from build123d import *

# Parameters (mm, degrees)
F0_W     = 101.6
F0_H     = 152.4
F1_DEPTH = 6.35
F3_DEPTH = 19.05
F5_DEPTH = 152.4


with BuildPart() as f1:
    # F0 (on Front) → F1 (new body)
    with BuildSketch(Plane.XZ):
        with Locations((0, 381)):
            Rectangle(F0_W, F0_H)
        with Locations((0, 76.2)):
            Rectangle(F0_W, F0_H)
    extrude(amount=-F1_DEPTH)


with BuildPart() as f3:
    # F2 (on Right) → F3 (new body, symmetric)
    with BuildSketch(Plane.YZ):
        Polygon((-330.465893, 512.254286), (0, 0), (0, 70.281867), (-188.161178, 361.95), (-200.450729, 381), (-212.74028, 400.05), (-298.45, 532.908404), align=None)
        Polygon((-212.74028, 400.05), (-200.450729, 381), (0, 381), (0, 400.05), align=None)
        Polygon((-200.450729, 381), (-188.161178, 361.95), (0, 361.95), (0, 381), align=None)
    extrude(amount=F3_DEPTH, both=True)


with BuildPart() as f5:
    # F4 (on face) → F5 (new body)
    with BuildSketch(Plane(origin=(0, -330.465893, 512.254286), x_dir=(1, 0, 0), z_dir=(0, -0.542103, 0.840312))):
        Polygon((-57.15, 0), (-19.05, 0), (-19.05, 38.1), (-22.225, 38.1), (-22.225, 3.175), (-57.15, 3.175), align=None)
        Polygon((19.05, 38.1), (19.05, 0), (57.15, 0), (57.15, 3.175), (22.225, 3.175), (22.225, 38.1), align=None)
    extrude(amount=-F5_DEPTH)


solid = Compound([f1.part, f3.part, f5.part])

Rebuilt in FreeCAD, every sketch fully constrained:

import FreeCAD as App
import Part
import Sketcher

V = App.Vector
Q = App.Units.Quantity

doc = App.newDocument("Part")
body = doc.addObject("PartDesign::Body", "Body")
body.AllowCompound = True

# Sketch on XZ plane
sketch1 = body.newObject("Sketcher::SketchObject", "Sketch")
sketch1.AttachmentSupport = (doc.getObject("XZ_Plane"), [""])
sketch1.MapMode = "FlatFace"
sketch1.addGeometry([
    Part.LineSegment(V(-51, 457, 0), V(-51, 305, 0)),  # 0
    Part.LineSegment(V(-51, 305, 0), V(51, 305, 0)),  # 1
    Part.LineSegment(V(51, 305, 0), V(51, 457, 0)),  # 2
    Part.LineSegment(V(51, 457, 0), V(-51, 457, 0)),  # 3
    Part.LineSegment(V(-51, 152, 0), V(-51, 0, 0)),  # 4
    Part.LineSegment(V(-51, 0, 0), V(51, 0, 0)),  # 5
    Part.LineSegment(V(51, 0, 0), V(51, 152, 0)),  # 6
    Part.LineSegment(V(51, 152, 0), V(-51, 152, 0)),  # 7
], False)
sketch1.addConstraint([
    Sketcher.Constraint("Coincident", 0, 2, 1, 1),
    Sketcher.Constraint("Coincident", 1, 2, 2, 1),
    Sketcher.Constraint("Coincident", 2, 2, 3, 1),
    Sketcher.Constraint("Coincident", 3, 2, 0, 1),
    Sketcher.Constraint("Coincident", 4, 2, 5, 1),
    Sketcher.Constraint("Coincident", 5, 2, 6, 1),
    Sketcher.Constraint("Coincident", 6, 2, 7, 1),
    Sketcher.Constraint("Coincident", 7, 2, 4, 1),
    Sketcher.Constraint("Vertical", 0),
    Sketcher.Constraint("Horizontal", 1),
    Sketcher.Constraint("Vertical", 2),
    Sketcher.Constraint("Horizontal", 3),
    Sketcher.Constraint("Vertical", 4),
    Sketcher.Constraint("Horizontal", 5),
    Sketcher.Constraint("Vertical", 6),
    Sketcher.Constraint("Horizontal", 7),
    Sketcher.Constraint("Symmetric", 4, 2, 5, 2, -1, 1),
    Sketcher.Constraint("Vertical", 3, 2, 4, 2),
    Sketcher.Constraint("Vertical", 2, 2, 5, 2),
    Sketcher.Constraint("Equal", 2, 4),
    Sketcher.Constraint("DistanceX", 1, 1, 1, 2, Q("4 in")),
    Sketcher.Constraint("DistanceY", 0, 2, 0, 1, Q("6 in")),
    Sketcher.Constraint("DistanceY", -1, 1, 0, 2, Q("12 in")),
])
pad1 = body.newObject("PartDesign::Pad", "Pad")
pad1.Profile = sketch1
pad1.Length = Q("0.25 in")
pad1.Reversed = True
body2 = doc.addObject("PartDesign::Body", "Body001")

# Sketch on YZ plane
sketch2 = body2.newObject("Sketcher::SketchObject", "Sketch001")
sketch2.AttachmentSupport = (doc.getObject("YZ_Plane001"), [""])
sketch2.MapMode = "FlatFace"
sketch2.addGeometry([
    Part.LineSegment(V(-330, 512, 0), V(0, 0, 0)),  # 0
    Part.LineSegment(V(0, 0, 0), V(0, 70, 0)),  # 1
    Part.LineSegment(V(0, 70, 0), V(-188, 362, 0)),  # 2
    Part.LineSegment(V(-188, 362, 0), V(0, 362, 0)),  # 3
    Part.LineSegment(V(0, 362, 0), V(0, 400, 0)),  # 4
    Part.LineSegment(V(0, 400, 0), V(-213, 400, 0)),  # 5
    Part.LineSegment(V(-213, 400, 0), V(-298, 533, 0)),  # 6
    Part.LineSegment(V(-298, 533, 0), V(-330, 512, 0)),  # 7
], False)
sketch2.addConstraint([
    Sketcher.Constraint("Coincident", 0, 2, 1, 1),
    Sketcher.Constraint("Coincident", 1, 2, 2, 1),
    Sketcher.Constraint("Coincident", 2, 2, 3, 1),
    Sketcher.Constraint("Coincident", 3, 2, 4, 1),
    Sketcher.Constraint("Coincident", 4, 2, 5, 1),
    Sketcher.Constraint("Coincident", 5, 2, 6, 1),
    Sketcher.Constraint("Coincident", 6, 2, 7, 1),
    Sketcher.Constraint("Coincident", 7, 2, 0, 1),
    Sketcher.Constraint("Vertical", 1),
    Sketcher.Constraint("Horizontal", 3),
    Sketcher.Constraint("Vertical", 4),
    Sketcher.Constraint("Horizontal", 5),
    Sketcher.Constraint("Coincident", 0, 2, -1, 1),
    Sketcher.Constraint("PointOnObject", 3, 2, -2),
    Sketcher.Constraint("Parallel", 0, 2),
    Sketcher.Constraint("Parallel", 2, 6),
    Sketcher.Constraint("Perpendicular", 6, 7),
    Sketcher.Constraint("Distance", 0, Q("24 in")),
    Sketcher.Constraint("DistanceY", 4, 1, 4, 2, Q("1.5 in")),
    Sketcher.Constraint("Distance", 7, Q("1.5 in")),
    Sketcher.Constraint("DistanceY", -1, 1, 2, 2, Q("14.25 in")),
    Sketcher.Constraint("DistanceX", 6, 2, -1, 1, Q("11.75 in")),
    Sketcher.Constraint("DistanceX", 3, 1, 3, 2, 188.161178),
])
pad2 = body2.newObject("PartDesign::Pad", "Pad001")
pad2.Profile = sketch2
pad2.Length = Q("1.5 in")
pad2.Midplane = True
body3 = doc.addObject("PartDesign::Body", "Body002")
body3.AllowCompound = True

# Sketch on an angled plane
sketch3 = body3.newObject("Sketcher::SketchObject", "Sketch002")
sketch3.Placement = App.Placement(V(0, -330.465893, 512.254286), App.Rotation(V(1, 0, 0), V(0, 0.840312034, 0.542103022), V(0, -0.542103022, 0.840312034), "ZXY"))
sketch3.addGeometry([
    Part.LineSegment(V(-57.1, 0, 0), V(-19.1, 0, 0)),  # 0
    Part.LineSegment(V(-19.1, 0, 0), V(-19.1, 38.1, 0)),  # 1
    Part.LineSegment(V(-19.1, 38.1, 0), V(-22.2, 38.1, 0)),  # 2
    Part.LineSegment(V(-22.2, 38.1, 0), V(-22.2, 3.2, 0)),  # 3
    Part.LineSegment(V(-22.2, 3.2, 0), V(-57.1, 3.2, 0)),  # 4
    Part.LineSegment(V(-57.1, 3.2, 0), V(-57.1, 0, 0)),  # 5
    Part.LineSegment(V(19.1, 38.1, 0), V(19.1, 0, 0)),  # 6
    Part.LineSegment(V(19.1, 0, 0), V(57.1, 0, 0)),  # 7
    Part.LineSegment(V(57.1, 0, 0), V(57.1, 3.2, 0)),  # 8
    Part.LineSegment(V(57.1, 3.2, 0), V(22.2, 3.2, 0)),  # 9
    Part.LineSegment(V(22.2, 3.2, 0), V(22.2, 38.1, 0)),  # 10
    Part.LineSegment(V(22.2, 38.1, 0), V(19.1, 38.1, 0)),  # 11
], False)
sketch3.addConstraint([
    Sketcher.Constraint("Coincident", 0, 2, 1, 1),
    Sketcher.Constraint("Coincident", 1, 2, 2, 1),
    Sketcher.Constraint("Coincident", 2, 2, 3, 1),
    Sketcher.Constraint("Coincident", 3, 2, 4, 1),
    Sketcher.Constraint("Coincident", 4, 2, 5, 1),
    Sketcher.Constraint("Coincident", 5, 2, 0, 1),
    Sketcher.Constraint("Coincident", 6, 2, 7, 1),
    Sketcher.Constraint("Coincident", 7, 2, 8, 1),
    Sketcher.Constraint("Coincident", 8, 2, 9, 1),
    Sketcher.Constraint("Coincident", 9, 2, 10, 1),
    Sketcher.Constraint("Coincident", 10, 2, 11, 1),
    Sketcher.Constraint("Coincident", 11, 2, 6, 1),
    Sketcher.Constraint("Horizontal", 0),
    Sketcher.Constraint("Vertical", 1),
    Sketcher.Constraint("Horizontal", 2),
    Sketcher.Constraint("Vertical", 3),
    Sketcher.Constraint("Horizontal", 4),
    Sketcher.Constraint("Vertical", 5),
    Sketcher.Constraint("Vertical", 6),
    Sketcher.Constraint("Horizontal", 7),
    Sketcher.Constraint("Vertical", 8),
    Sketcher.Constraint("Horizontal", 9),
    Sketcher.Constraint("Vertical", 10),
    Sketcher.Constraint("Horizontal", 11),
    Sketcher.Constraint("Symmetric", 0, 2, 6, 2, -1, 1),
    Sketcher.Constraint("Symmetric", 5, 2, 7, 2, -2),
    Sketcher.Constraint("Symmetric", 3, 2, 9, 2, -2),
    Sketcher.Constraint("Horizontal", 2, 2, 10, 2),
    Sketcher.Constraint("Equal", 7, 1),
    Sketcher.Constraint("Equal", 9, 3),
    Sketcher.Constraint("DistanceX", 0, 1, 0, 2, Q("1.5 in")),
    Sketcher.Constraint("DistanceX", 5, 2, 6, 2, Q("3 in")),
    Sketcher.Constraint("DistanceX", 2, 2, 2, 1, Q("0.125 in")),
])
pad3 = body3.newObject("PartDesign::Pad", "Pad002")
pad3.Profile = sketch3
pad3.Length = Q("6 in")
pad3.Reversed = True

doc.recompute()
